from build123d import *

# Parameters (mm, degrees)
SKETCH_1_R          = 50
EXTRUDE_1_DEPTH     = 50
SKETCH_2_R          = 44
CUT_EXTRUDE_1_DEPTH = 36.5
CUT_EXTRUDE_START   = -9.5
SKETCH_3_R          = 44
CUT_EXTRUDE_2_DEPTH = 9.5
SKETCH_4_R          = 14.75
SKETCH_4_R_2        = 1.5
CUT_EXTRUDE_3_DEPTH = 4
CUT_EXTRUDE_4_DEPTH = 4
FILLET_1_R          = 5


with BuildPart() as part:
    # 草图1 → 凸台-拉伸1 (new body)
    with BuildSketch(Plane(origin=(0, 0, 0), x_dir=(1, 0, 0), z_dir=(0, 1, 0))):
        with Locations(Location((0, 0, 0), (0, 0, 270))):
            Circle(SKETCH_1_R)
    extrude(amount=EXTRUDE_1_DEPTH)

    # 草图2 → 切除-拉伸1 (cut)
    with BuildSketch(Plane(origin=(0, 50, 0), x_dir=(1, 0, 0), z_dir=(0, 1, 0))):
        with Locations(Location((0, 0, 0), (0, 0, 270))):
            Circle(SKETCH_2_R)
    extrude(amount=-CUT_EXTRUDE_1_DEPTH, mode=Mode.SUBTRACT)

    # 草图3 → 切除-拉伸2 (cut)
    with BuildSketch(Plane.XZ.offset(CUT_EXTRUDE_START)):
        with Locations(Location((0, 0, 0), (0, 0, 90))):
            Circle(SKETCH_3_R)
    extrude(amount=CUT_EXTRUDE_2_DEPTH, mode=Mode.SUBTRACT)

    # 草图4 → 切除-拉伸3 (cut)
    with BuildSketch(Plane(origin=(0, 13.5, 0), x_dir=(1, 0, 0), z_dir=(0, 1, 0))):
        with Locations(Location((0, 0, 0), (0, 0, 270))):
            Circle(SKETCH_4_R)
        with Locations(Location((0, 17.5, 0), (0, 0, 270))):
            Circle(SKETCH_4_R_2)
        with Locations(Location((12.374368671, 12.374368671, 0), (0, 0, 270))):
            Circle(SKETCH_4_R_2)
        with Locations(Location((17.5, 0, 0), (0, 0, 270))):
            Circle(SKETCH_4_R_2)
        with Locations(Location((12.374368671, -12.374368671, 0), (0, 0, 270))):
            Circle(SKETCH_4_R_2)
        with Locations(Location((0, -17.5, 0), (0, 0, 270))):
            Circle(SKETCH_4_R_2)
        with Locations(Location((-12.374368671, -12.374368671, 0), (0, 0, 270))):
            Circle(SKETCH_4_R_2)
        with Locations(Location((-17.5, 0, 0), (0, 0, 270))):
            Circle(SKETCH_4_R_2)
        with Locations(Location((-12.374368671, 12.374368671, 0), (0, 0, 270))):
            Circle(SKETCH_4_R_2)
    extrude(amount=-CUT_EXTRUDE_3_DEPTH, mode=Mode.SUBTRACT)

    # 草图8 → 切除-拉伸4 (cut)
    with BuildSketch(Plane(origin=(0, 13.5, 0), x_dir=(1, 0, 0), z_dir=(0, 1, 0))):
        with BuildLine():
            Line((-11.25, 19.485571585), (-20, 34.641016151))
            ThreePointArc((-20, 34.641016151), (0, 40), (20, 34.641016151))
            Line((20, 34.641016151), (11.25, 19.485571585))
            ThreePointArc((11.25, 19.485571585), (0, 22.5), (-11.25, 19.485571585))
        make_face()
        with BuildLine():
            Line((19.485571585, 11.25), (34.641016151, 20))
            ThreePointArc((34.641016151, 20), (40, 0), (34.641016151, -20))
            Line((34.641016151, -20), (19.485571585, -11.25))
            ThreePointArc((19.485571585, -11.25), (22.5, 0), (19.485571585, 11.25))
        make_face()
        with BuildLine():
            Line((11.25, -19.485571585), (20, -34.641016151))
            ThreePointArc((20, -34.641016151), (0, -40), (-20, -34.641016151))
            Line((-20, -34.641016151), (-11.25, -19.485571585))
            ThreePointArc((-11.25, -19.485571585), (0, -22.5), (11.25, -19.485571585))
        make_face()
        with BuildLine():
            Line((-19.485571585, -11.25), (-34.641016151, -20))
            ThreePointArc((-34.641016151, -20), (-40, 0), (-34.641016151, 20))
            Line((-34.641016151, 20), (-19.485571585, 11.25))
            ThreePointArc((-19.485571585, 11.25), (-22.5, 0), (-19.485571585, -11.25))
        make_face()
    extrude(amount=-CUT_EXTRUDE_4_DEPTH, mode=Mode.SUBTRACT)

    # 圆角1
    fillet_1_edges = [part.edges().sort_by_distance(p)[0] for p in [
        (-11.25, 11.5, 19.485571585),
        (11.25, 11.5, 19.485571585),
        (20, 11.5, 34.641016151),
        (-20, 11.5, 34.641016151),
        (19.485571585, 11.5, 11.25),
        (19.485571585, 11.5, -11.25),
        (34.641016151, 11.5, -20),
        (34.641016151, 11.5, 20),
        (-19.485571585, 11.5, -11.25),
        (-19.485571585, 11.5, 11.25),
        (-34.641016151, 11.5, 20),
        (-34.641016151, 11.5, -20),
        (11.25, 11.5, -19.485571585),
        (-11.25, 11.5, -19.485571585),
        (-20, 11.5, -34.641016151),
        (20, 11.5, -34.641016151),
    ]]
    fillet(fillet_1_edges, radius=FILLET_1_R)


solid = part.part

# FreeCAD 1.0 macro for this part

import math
import FreeCAD as App
import Part
import Sketcher

V = App.Vector
Q = App.Units.Quantity


def edges_at(feature, points):
    """Names of the edges that pass closest to the given points."""
    edges = feature.Shape.Edges
    near = lambda p: min(range(len(edges)), key=lambda i: edges[i].distToShape(Part.Vertex(*p))[0])
    return sorted({f"Edge{near(p) + 1}" for p in points})

doc = App.newDocument("Part")
body = doc.addObject("PartDesign::Body", "Body")

# Sketch on XZ plane
sketch1 = doc.addObject("Sketcher::SketchObject", "Sketch")
body.addObject(sketch1)
sketch1.AttachmentSupport = (doc.XZ_Plane, [""])
sketch1.MapMode = "FlatFace"
sketch1.addGeometry(Part.Circle(V(0, 0, 0), V(0, 0, 1), 50), False)
sketch1.addConstraint(Sketcher.Constraint("Coincident", 0, 3, -1, 1))
sketch1.addConstraint(Sketcher.Constraint("Diameter", 0, Q("100 mm")))
pad1 = doc.addObject("PartDesign::Pad", "Pad")
body.addObject(pad1)
pad1.Profile = sketch1
pad1.Length = 50
pad1.Reversed = True

# Sketch on XZ plane
sketch2 = doc.addObject("Sketcher::SketchObject", "Sketch001")
body.addObject(sketch2)
sketch2.AttachmentSupport = (doc.XZ_Plane, [""])
sketch2.MapMode = "FlatFace"
sketch2.AttachmentOffset = App.Placement(V(0, 0, -50), App.Rotation())
sketch2.addGeometry(Part.Circle(V(0, 0, 0), V(0, 0, 1), 44), False)
sketch2.addConstraint(Sketcher.Constraint("Coincident", 0, 3, -1, 1))
sketch2.addConstraint(Sketcher.Constraint("Diameter", 0, Q("88 mm")))
pocket1 = doc.addObject("PartDesign::Pocket", "Pocket")
body.addObject(pocket1)
pocket1.Profile = sketch2
pocket1.Length = 36.5
pocket1.Reversed = True

# Sketch on XZ plane
sketch3 = doc.addObject("Sketcher::SketchObject", "Sketch002")
body.addObject(sketch3)
sketch3.AttachmentSupport = (doc.XZ_Plane, [""])
sketch3.MapMode = "FlatFace"
sketch3.AttachmentOffset = App.Placement(V(0, 0, -9.5), App.Rotation())
sketch3.addGeometry(Part.Circle(V(0, 0, 0), V(0, 0, 1), 44), False)
sketch3.addConstraint(Sketcher.Constraint("Coincident", 0, 3, -1, 1))
sketch3.addConstraint(Sketcher.Constraint("Diameter", 0, Q("88 mm")))
pocket2 = doc.addObject("PartDesign::Pocket", "Pocket001")
body.addObject(pocket2)
pocket2.Profile = sketch3
pocket2.Length = 9.5
pocket2.Reversed = True

# Sketch on XZ plane
sketch4 = doc.addObject("Sketcher::SketchObject", "Sketch003")
body.addObject(sketch4)
sketch4.AttachmentSupport = (doc.XZ_Plane, [""])
sketch4.MapMode = "FlatFace"
sketch4.AttachmentOffset = App.Placement(V(0, 0, -13.5), App.Rotation())
sketch4.addGeometry(Part.Circle(V(0, 0, 0), V(0, 0, 1), 14.8), False)
sketch4.addGeometry(Part.Circle(V(0, -17.5, 0), V(0, 0, 1), 1.5), False)
sketch4.addGeometry(Part.Circle(V(12.4, -12.4, 0), V(0, 0, 1), 1.5), False)
sketch4.addGeometry(Part.Circle(V(17.5, 0, 0), V(0, 0, 1), 1.5), False)
sketch4.addGeometry(Part.Circle(V(12.4, 12.4, 0), V(0, 0, 1), 1.5), False)
sketch4.addGeometry(Part.Circle(V(0, 17.5, 0), V(0, 0, 1), 1.5), False)
sketch4.addGeometry(Part.Circle(V(-12.4, 12.4, 0), V(0, 0, 1), 1.5), False)
sketch4.addGeometry(Part.Circle(V(-17.5, 0, 0), V(0, 0, 1), 1.5), False)
sketch4.addGeometry(Part.Circle(V(-12.4, -12.4, 0), V(0, 0, 1), 1.5), False)
sketch4.addConstraint(Sketcher.Constraint("Coincident", 0, 3, -1, 1))
sketch4.addConstraint(Sketcher.Constraint("Equal", 1, 2))
sketch4.addConstraint(Sketcher.Constraint("Equal", 2, 3))
sketch4.addConstraint(Sketcher.Constraint("Equal", 3, 4))
sketch4.addConstraint(Sketcher.Constraint("Equal", 4, 5))
sketch4.addConstraint(Sketcher.Constraint("Equal", 5, 6))
sketch4.addConstraint(Sketcher.Constraint("Equal", 6, 7))
sketch4.addConstraint(Sketcher.Constraint("Equal", 7, 8))
sketch4.addConstraint(Sketcher.Constraint("Symmetric", 1, 3, 5, 3, -1, 1))
sketch4.addConstraint(Sketcher.Constraint("Symmetric", 2, 3, 6, 3, -1, 1))
sketch4.addConstraint(Sketcher.Constraint("Symmetric", 3, 3, 7, 3, -1, 1))
sketch4.addConstraint(Sketcher.Constraint("Symmetric", 4, 3, 8, 3, -1, 1))
sketch4.addConstraint(Sketcher.Constraint("Symmetric", 4, 3, 6, 3, -2))
sketch4.addConstraint(Sketcher.Constraint("PointOnObject", 1, 3, -2))
sketch4.addConstraint(Sketcher.Constraint("PointOnObject", 3, 3, -1))
sketch4.addConstraint(Sketcher.Constraint("Diameter", 1, Q("3 mm")))
sketch4.addConstraint(Sketcher.Constraint("Diameter", 0, Q("29.5 mm")))
sketch4.addConstraint(Sketcher.Constraint("DistanceY", 1, 3, 5, 3, Q("35 mm")))
sketch4.addConstraint(Sketcher.Constraint("DistanceX", -1, 1, 3, 3, Q("17.5 mm")))
sketch4.addConstraint(Sketcher.Constraint("DistanceX", -1, 1, 2, 3, Q("12.374369 mm")))
sketch4.addConstraint(Sketcher.Constraint("DistanceY", 2, 3, -1, 1, Q("12.374369 mm")))
pocket3 = doc.addObject("PartDesign::Pocket", "Pocket002")
body.addObject(pocket3)
pocket3.Profile = sketch4
pocket3.Length = 4
pocket3.Reversed = True

# Sketch on XZ plane
sketch5 = doc.addObject("Sketcher::SketchObject", "Sketch004")
body.addObject(sketch5)
sketch5.AttachmentSupport = (doc.XZ_Plane, [""])
sketch5.MapMode = "FlatFace"
sketch5.AttachmentOffset = App.Placement(V(0, 0, -13.5), App.Rotation())
sketch5.addGeometry(Part.LineSegment(V(-20, -35, 0), V(-11, -19, 0)), False)
sketch5.addGeometry(Part.ArcOfCircle(Part.Circle(V(0, 0, 0), V(0, 0, 1), 22), math.radians(-120), math.radians(-60)), False)
sketch5.addGeometry(Part.LineSegment(V(11, -19, 0), V(20, -35, 0)), False)
sketch5.addGeometry(Part.ArcOfCircle(Part.Circle(V(0, 0, 0), V(0, 0, 1), 40), math.radians(-120), math.radians(-60)), False)
sketch5.addGeometry(Part.LineSegment(V(35, -20, 0), V(19, -11, 0)), False)
sketch5.addGeometry(Part.ArcOfCircle(Part.Circle(V(0, 0, 0), V(0, 0, 1), 22), math.radians(-30), math.radians(30)), False)
sketch5.addGeometry(Part.LineSegment(V(19, 11, 0), V(35, 20, 0)), False)
sketch5.addGeometry(Part.ArcOfCircle(Part.Circle(V(0, 0, 0), V(0, 0, 1), 40), math.radians(-30), math.radians(30)), False)
sketch5.addGeometry(Part.LineSegment(V(20, 35, 0), V(11, 19, 0)), False)
sketch5.addGeometry(Part.ArcOfCircle(Part.Circle(V(0, 0, 0), V(0, 0, 1), 22), math.radians(60), math.radians(120)), False)
sketch5.addGeometry(Part.LineSegment(V(-11, 19, 0), V(-20, 35, 0)), False)
sketch5.addGeometry(Part.ArcOfCircle(Part.Circle(V(0, 0, 0), V(0, 0, 1), 40), math.radians(60), math.radians(120)), False)
sketch5.addGeometry(Part.LineSegment(V(-35, 20, 0), V(-19, 11, 0)), False)
sketch5.addGeometry(Part.ArcOfCircle(Part.Circle(V(0, 0, 0), V(0, 0, 1), 22), math.radians(150), math.radians(210)), False)
sketch5.addGeometry(Part.LineSegment(V(-19, -11, 0), V(-35, -20, 0)), False)
sketch5.addGeometry(Part.ArcOfCircle(Part.Circle(V(0, 0, 0), V(0, 0, 1), 40), math.radians(150), math.radians(210)), False)
sketch5.addConstraint(Sketcher.Constraint("Coincident", 0, 2, 1, 1))
sketch5.addConstraint(Sketcher.Constraint("Coincident", 1, 2, 2, 1))
sketch5.addConstraint(Sketcher.Constraint("Coincident", 2, 2, 3, 2))
sketch5.addConstraint(Sketcher.Constraint("Coincident", 3, 1, 0, 1))
sketch5.addConstraint(Sketcher.Constraint("Coincident", 4, 2, 5, 1))
sketch5.addConstraint(Sketcher.Constraint("Coincident", 5, 2, 6, 1))
sketch5.addConstraint(Sketcher.Constraint("Coincident", 6, 2, 7, 2))
sketch5.addConstraint(Sketcher.Constraint("Coincident", 7, 1, 4, 1))
sketch5.addConstraint(Sketcher.Constraint("Coincident", 8, 2, 9, 1))
sketch5.addConstraint(Sketcher.Constraint("Coincident", 9, 2, 10, 1))
sketch5.addConstraint(Sketcher.Constraint("Coincident", 10, 2, 11, 2))
sketch5.addConstraint(Sketcher.Constraint("Coincident", 11, 1, 8, 1))
sketch5.addConstraint(Sketcher.Constraint("Coincident", 12, 2, 13, 1))
sketch5.addConstraint(Sketcher.Constraint("Coincident", 13, 2, 14, 1))
sketch5.addConstraint(Sketcher.Constraint("Coincident", 14, 2, 15, 2))
sketch5.addConstraint(Sketcher.Constraint("Coincident", 15, 1, 12, 1))
sketch5.addConstraint(Sketcher.Constraint("Coincident", 1, 3, -1, 1))
sketch5.addConstraint(Sketcher.Constraint("Coincident", 3, 3, -1, 1))
sketch5.addConstraint(Sketcher.Constraint("Coincident", 5, 3, -1, 1))
sketch5.addConstraint(Sketcher.Constraint("Coincident", 7, 3, -1, 1))
sketch5.addConstraint(Sketcher.Constraint("Coincident", 9, 3, -1, 1))
sketch5.addConstraint(Sketcher.Constraint("Coincident", 11, 3, -1, 1))
sketch5.addConstraint(Sketcher.Constraint("Coincident", 13, 3, -1, 1))
sketch5.addConstraint(Sketcher.Constraint("Coincident", 15, 3, -1, 1))
sketch5.addConstraint(Sketcher.Constraint("Equal", 1, 5))
sketch5.addConstraint(Sketcher.Constraint("Equal", 3, 7))
sketch5.addConstraint(Sketcher.Constraint("Equal", 5, 9))
sketch5.addConstraint(Sketcher.Constraint("Equal", 7, 11))
sketch5.addConstraint(Sketcher.Constraint("Equal", 9, 13))
sketch5.addConstraint(Sketcher.Constraint("Equal", 11, 15))
sketch5.addConstraint(Sketcher.Constraint("Perpendicular", 0, 4))
sketch5.addConstraint(Sketcher.Constraint("Perpendicular", 2, 6))
sketch5.addConstraint(Sketcher.Constraint("Perpendicular", 4, 8))
sketch5.addConstraint(Sketcher.Constraint("Perpendicular", 6, 10))
sketch5.addConstraint(Sketcher.Constraint("Perpendicular", 8, 12))
sketch5.addConstraint(Sketcher.Constraint("Perpendicular", 10, 14))
sketch5.addConstraint(Sketcher.Constraint("Horizontal", 0, 2, 1, 2))
sketch5.addConstraint(Sketcher.Constraint("Horizontal", 2, 2, 3, 1))
sketch5.addConstraint(Sketcher.Constraint("Horizontal", 8, 2, 9, 2))
sketch5.addConstraint(Sketcher.Constraint("Horizontal", 5, 2, 12, 2))
sketch5.addConstraint(Sketcher.Constraint("Horizontal", 4, 2, 13, 2))
sketch5.addConstraint(Sketcher.Constraint("Vertical", 4, 2, 5, 2))
sketch5.addConstraint(Sketcher.Constraint("Vertical", 1, 2, 8, 2))
sketch5.addConstraint(Sketcher.Constraint("Radius", 3, Q("40 mm")))
sketch5.addConstraint(Sketcher.Constraint("Radius", 1, Q("22.5 mm")))
sketch5.addConstraint(Sketcher.Constraint("Angle", 0, Q("60 deg")))
sketch5.addConstraint(Sketcher.Constraint("DistanceX", -1, 1, 2, 2, Q("20 mm")))
sketch5.addConstraint(Sketcher.Constraint("DistanceY", -1, 1, 6, 2, Q("20 mm")))
pocket4 = doc.addObject("PartDesign::Pocket", "Pocket003")
body.addObject(pocket4)
pocket4.Profile = sketch5
pocket4.Length = 4
pocket4.Reversed = True
doc.recompute()

fillet = doc.addObject("PartDesign::Fillet", "Fillet")
body.addObject(fillet)
fillet.Base = (pocket4, edges_at(pocket4, [
    (-11.25, 11.5, 19.486),
    (11.25, 11.5, 19.486),
    (20, 11.5, 34.641),
    (-20, 11.5, 34.641),
    (19.486, 11.5, 11.25),
    (19.486, 11.5, -11.25),
    (34.641, 11.5, -20),
    (34.641, 11.5, 20),
    (-19.486, 11.5, -11.25),
    (-19.486, 11.5, 11.25),
    (-34.641, 11.5, 20),
    (-34.641, 11.5, -20),
    (11.25, 11.5, -19.486),
    (-11.25, 11.5, -19.486),
    (-20, 11.5, -34.641),
    (20, 11.5, -34.641),
]))
fillet.Radius = 5

doc.recompute()
